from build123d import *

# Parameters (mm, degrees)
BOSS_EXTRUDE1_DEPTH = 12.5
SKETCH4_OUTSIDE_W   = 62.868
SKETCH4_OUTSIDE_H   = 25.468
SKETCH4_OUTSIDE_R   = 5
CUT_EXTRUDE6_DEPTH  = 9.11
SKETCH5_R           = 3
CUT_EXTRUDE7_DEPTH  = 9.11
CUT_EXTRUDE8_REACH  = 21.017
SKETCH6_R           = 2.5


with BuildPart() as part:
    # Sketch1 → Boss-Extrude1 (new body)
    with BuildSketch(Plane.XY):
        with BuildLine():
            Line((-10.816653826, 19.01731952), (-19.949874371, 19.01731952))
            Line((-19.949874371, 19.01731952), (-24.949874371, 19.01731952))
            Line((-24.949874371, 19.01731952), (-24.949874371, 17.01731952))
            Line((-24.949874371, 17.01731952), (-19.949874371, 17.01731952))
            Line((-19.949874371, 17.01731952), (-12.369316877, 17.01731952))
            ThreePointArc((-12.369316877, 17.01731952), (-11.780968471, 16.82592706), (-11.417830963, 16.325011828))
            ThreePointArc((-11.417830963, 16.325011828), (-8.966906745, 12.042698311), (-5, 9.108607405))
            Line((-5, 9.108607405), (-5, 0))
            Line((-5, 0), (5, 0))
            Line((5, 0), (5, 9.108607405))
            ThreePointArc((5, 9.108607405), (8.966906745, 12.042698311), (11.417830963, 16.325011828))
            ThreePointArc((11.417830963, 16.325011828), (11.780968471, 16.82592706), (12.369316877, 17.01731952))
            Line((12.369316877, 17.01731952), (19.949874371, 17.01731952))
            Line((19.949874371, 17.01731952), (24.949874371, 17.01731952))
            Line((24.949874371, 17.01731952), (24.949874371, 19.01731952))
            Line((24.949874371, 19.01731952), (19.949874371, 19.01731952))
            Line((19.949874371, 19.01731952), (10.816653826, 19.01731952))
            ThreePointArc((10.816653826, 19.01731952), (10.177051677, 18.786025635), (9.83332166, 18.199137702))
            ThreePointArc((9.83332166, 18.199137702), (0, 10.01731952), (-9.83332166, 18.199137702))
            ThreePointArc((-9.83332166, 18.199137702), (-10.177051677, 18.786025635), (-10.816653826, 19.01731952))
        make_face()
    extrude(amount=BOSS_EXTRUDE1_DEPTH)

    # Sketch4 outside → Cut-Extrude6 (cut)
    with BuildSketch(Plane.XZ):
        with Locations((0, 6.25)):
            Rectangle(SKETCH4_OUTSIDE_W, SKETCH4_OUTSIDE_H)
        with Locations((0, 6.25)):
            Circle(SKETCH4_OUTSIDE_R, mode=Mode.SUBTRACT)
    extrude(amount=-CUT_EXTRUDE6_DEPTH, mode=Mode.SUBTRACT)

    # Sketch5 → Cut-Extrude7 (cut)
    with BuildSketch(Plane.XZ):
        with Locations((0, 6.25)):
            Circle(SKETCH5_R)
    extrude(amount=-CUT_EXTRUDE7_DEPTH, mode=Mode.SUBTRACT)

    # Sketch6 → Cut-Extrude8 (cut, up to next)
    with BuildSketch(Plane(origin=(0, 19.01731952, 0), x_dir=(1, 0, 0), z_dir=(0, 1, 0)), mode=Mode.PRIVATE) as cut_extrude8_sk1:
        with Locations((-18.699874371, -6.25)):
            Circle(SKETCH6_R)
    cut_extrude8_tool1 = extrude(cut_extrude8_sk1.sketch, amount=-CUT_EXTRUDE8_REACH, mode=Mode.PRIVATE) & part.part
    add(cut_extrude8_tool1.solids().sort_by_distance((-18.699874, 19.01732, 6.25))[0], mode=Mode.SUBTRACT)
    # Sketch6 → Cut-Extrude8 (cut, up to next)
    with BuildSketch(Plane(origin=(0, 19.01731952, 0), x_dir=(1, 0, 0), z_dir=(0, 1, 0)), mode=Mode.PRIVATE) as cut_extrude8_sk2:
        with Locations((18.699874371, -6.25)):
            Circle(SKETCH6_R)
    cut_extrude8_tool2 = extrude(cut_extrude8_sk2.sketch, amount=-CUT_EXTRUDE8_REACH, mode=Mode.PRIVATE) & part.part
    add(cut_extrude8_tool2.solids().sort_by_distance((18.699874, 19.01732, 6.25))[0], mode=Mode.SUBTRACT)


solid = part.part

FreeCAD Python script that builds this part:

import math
import FreeCAD as App
import Part
import Sketcher
Q = App.Units.Quantity


def add_polygon(sketch, points):
    """Adds a closed chain of lines whose ends are joined by coincident constraints."""
    first, n = sketch.GeometryCount, len(points)
    for a, b in zip(points, points[1:] + points[:1]):
        sketch.addGeometry(Part.LineSegment(App.Vector(*a, 0), App.Vector(*b, 0)), False)
    for i in range(n):
        sketch.addConstraint(Sketcher.Constraint("Coincident", first + i, 2, first + (i + 1) % n, 1))

doc = App.newDocument("Part")
body = doc.addObject("PartDesign::Body", "Body")

sketch1 = body.newObject("Sketcher::SketchObject", "Sketch")
sketch1.AttachmentSupport = (doc.getObject("XY_Plane"), [""])
sketch1.MapMode = "FlatFace"
sketch1.addGeometry([
    Part.LineSegment(App.Vector(-10.8, 19, 0), App.Vector(-24.9, 19, 0)),
    Part.LineSegment(App.Vector(-24.9, 19, 0), App.Vector(-24.9, 17, 0)),
    Part.LineSegment(App.Vector(-24.9, 17, 0), App.Vector(-12.4, 17, 0)),
    Part.ArcOfCircle(Part.Circle(App.Vector(-12.4, 16, 0), App.Vector(0, 0, 1), 1), math.radians(18), math.radians(90)),
    Part.ArcOfCircle(Part.Circle(App.Vector(0, 20, 0), App.Vector(0, 0, 1), 12), math.radians(-162), math.radians(-115)),
    Part.LineSegment(App.Vector(-5, 9.1, 0), App.Vector(-5, 0, 0)),
    Part.LineSegment(App.Vector(-5, 0, 0), App.Vector(5, 0, 0)),
    Part.LineSegment(App.Vector(5, 0, 0), App.Vector(5, 9.1, 0)),
    Part.ArcOfCircle(Part.Circle(App.Vector(0, 20, 0), App.Vector(0, 0, 1), 12), math.radians(-65), math.radians(-18)),
    Part.ArcOfCircle(Part.Circle(App.Vector(12.4, 16, 0), App.Vector(0, 0, 1), 1), math.radians(90), math.radians(162)),
    Part.LineSegment(App.Vector(12.4, 17, 0), App.Vector(24.9, 17, 0)),
    Part.LineSegment(App.Vector(24.9, 17, 0), App.Vector(24.9, 19, 0)),
    Part.LineSegment(App.Vector(24.9, 19, 0), App.Vector(10.8, 19, 0)),
    Part.ArcOfCircle(Part.Circle(App.Vector(10.8, 18, 0), App.Vector(0, 0, 1), 1), math.radians(90), math.radians(170)),
    Part.ArcOfCircle(Part.Circle(App.Vector(0, 20, 0), App.Vector(0, 0, 1), 10), math.radians(-170), math.radians(-10)),
    Part.ArcOfCircle(Part.Circle(App.Vector(-10.8, 18, 0), App.Vector(0, 0, 1), 1), math.radians(10), math.radians(90)),
], False)
sketch1.addConstraint([
    Sketcher.Constraint("Coincident", 0, 2, 1, 1),
    Sketcher.Constraint("Coincident", 1, 2, 2, 1),
    Sketcher.Constraint("Tangent", 2, 2, 3, 2),
    Sketcher.Constraint("Tangent", 3, 1, 4, 1),
    Sketcher.Constraint("Coincident", 4, 2, 5, 1),
    Sketcher.Constraint("Coincident", 5, 2, 6, 1),
    Sketcher.Constraint("Coincident", 6, 2, 7, 1),
    Sketcher.Constraint("Coincident", 7, 2, 8, 1),
    Sketcher.Constraint("Tangent", 8, 2, 9, 2),
    Sketcher.Constraint("Tangent", 9, 1, 10, 1),
    Sketcher.Constraint("Coincident", 10, 2, 11, 1),
    Sketcher.Constraint("Coincident", 11, 2, 12, 1),
    Sketcher.Constraint("Tangent", 12, 2, 13, 1),
    Sketcher.Constraint("Tangent", 13, 2, 14, 2),
    Sketcher.Constraint("Tangent", 14, 1, 15, 1),
    Sketcher.Constraint("Tangent", 15, 2, 0, 1),
    Sketcher.Constraint("Horizontal", 0),
    Sketcher.Constraint("Vertical", 1),
    Sketcher.Constraint("Horizontal", 2),
    Sketcher.Constraint("Vertical", 5),
    Sketcher.Constraint("Horizontal", 6),
    Sketcher.Constraint("Vertical", 7),
    Sketcher.Constraint("Horizontal", 10),
    Sketcher.Constraint("Vertical", 11),
    Sketcher.Constraint("Horizontal", 12),
    Sketcher.Constraint("Coincident", 8, 3, 4, 3),
    Sketcher.Constraint("Coincident", 14, 3, 4, 3),
    Sketcher.Constraint("Equal", 4, 8),
    Sketcher.Constraint("Equal", 3, 9),
    Sketcher.Constraint("Equal", 9, 13),
    Sketcher.Constraint("Equal", 13, 15),
    Sketcher.Constraint("Symmetric", 5, 2, 6, 2, -1, 1),
    Sketcher.Constraint("Symmetric", 3, 3, 9, 3, -2),
    Sketcher.Constraint("Symmetric", 0, 2, 11, 2, -2),
    Sketcher.Constraint("Radius", 3, Q("1 mm")),
    Sketcher.Constraint("Radius", 4, Q("12 mm")),
    Sketcher.Constraint("Radius", 14, Q("10 mm")),
    Sketcher.Constraint("DistanceX", 6, 1, 6, 2, Q("10 mm")),
    Sketcher.Constraint("DistanceY", 1, 2, 1, 1, Q("2 mm")),
    Sketcher.Constraint("DistanceY", 3, 3, 4, 3, Q("4 mm")),
    Sketcher.Constraint("DistanceX", 0, 2, 0, 1, Q("14.133221 mm")),
    Sketcher.Constraint("DistanceY", 5, 2, 5, 1, Q("9.108607 mm")),
])
pad1 = body.newObject("PartDesign::Pad", "Pad")
pad1.Profile = sketch1
pad1.Length = 12.5

sketch2 = body.newObject("Sketcher::SketchObject", "Sketch001")
sketch2.AttachmentSupport = (doc.getObject("XZ_Plane"), [""])
sketch2.MapMode = "FlatFace"
add_polygon(sketch2, [(-31, 19), (-31, -6), (31, -6), (31, 19)])
sketch2.addGeometry(Part.Circle(App.Vector(0, 6, 0), App.Vector(0, 0, 1), 5), False)
sketch2.addConstraint([
    Sketcher.Constraint("Vertical", 0),
    Sketcher.Constraint("Horizontal", 1),
    Sketcher.Constraint("Vertical", 2),
    Sketcher.Constraint("Horizontal", 3),
    Sketcher.Constraint("PointOnObject", 4, 3, -2),
    Sketcher.Constraint("Diameter", 4, Q("10 mm")),
    Sketcher.Constraint("DistanceX", 1, 1, 1, 2, Q("62.868 mm")),
    Sketcher.Constraint("DistanceY", 0, 2, 0, 1, Q("25.468 mm")),
    Sketcher.Constraint("DistanceY", -1, 1, 4, 3, Q("6.25 mm")),
    Sketcher.Constraint("DistanceX", 0, 2, -1, 1, Q("31.434 mm")),
    Sketcher.Constraint("DistanceY", 0, 2, -1, 1, Q("6.484 mm")),
])
pocket1 = body.newObject("PartDesign::Pocket", "Pocket")
pocket1.Profile = sketch2
pocket1.Length = 9.11

sketch3 = body.newObject("Sketcher::SketchObject", "Sketch002")
sketch3.AttachmentSupport = (doc.getObject("XZ_Plane"), [""])
sketch3.MapMode = "FlatFace"
sketch3.addGeometry(Part.Circle(App.Vector(0, 6.2, 0), App.Vector(0, 0, 1), 3), False)
sketch3.addConstraint([
    Sketcher.Constraint("PointOnObject", 0, 3, -2),
    Sketcher.Constraint("Diameter", 0, Q("6 mm")),
    Sketcher.Constraint("DistanceY", -1, 1, 0, 3, Q("6.25 mm")),
])
pocket2 = body.newObject("PartDesign::Pocket", "Pocket001")
pocket2.Profile = sketch3
pocket2.Length = 9.11

sketch4 = body.newObject("Sketcher::SketchObject", "Sketch003")
sketch4.AttachmentSupport = (doc.getObject("XZ_Plane"), [""])
sketch4.MapMode = "FlatFace"
sketch4.AttachmentOffset = App.Placement(App.Vector(0, 0, -19.01732), App.Rotation())
sketch4.addGeometry(Part.Circle(App.Vector(-18.7, 6.2, 0), App.Vector(0, 0, 1), 2.5), False)
sketch4.addConstraint([
    Sketcher.Constraint("Diameter", 0, Q("5 mm")),
    Sketcher.Constraint("DistanceY", -1, 1, 0, 3, Q("6.25 mm")),
    Sketcher.Constraint("DistanceX", 0, 3, -1, 1, Q("18.699874 mm")),
])
pocket3 = body.newObject("PartDesign::Pocket", "Pocket002")
pocket3.Profile = sketch4
pocket3.Type = "UpToFirst"
pocket3.Reversed = True

sketch5 = body.newObject("Sketcher::SketchObject", "Sketch004")
sketch5.AttachmentSupport = (doc.getObject("XZ_Plane"), [""])
sketch5.MapMode = "FlatFace"
sketch5.AttachmentOffset = App.Placement(App.Vector(0, 0, -19.01732), App.Rotation())
sketch5.addGeometry(Part.Circle(App.Vector(18.7, 6.2, 0), App.Vector(0, 0, 1), 2.5), False)
sketch5.addConstraint([
    Sketcher.Constraint("Diameter", 0, Q("5 mm")),
    Sketcher.Constraint("DistanceY", -1, 1, 0, 3, Q("6.25 mm")),
    Sketcher.Constraint("DistanceX", -1, 1, 0, 3, Q("18.699874 mm")),
])
pocket4 = body.newObject("PartDesign::Pocket", "Pocket003")
pocket4.Profile = sketch5
pocket4.Type = "UpToFirst"
pocket4.Reversed = True

doc.recompute()
